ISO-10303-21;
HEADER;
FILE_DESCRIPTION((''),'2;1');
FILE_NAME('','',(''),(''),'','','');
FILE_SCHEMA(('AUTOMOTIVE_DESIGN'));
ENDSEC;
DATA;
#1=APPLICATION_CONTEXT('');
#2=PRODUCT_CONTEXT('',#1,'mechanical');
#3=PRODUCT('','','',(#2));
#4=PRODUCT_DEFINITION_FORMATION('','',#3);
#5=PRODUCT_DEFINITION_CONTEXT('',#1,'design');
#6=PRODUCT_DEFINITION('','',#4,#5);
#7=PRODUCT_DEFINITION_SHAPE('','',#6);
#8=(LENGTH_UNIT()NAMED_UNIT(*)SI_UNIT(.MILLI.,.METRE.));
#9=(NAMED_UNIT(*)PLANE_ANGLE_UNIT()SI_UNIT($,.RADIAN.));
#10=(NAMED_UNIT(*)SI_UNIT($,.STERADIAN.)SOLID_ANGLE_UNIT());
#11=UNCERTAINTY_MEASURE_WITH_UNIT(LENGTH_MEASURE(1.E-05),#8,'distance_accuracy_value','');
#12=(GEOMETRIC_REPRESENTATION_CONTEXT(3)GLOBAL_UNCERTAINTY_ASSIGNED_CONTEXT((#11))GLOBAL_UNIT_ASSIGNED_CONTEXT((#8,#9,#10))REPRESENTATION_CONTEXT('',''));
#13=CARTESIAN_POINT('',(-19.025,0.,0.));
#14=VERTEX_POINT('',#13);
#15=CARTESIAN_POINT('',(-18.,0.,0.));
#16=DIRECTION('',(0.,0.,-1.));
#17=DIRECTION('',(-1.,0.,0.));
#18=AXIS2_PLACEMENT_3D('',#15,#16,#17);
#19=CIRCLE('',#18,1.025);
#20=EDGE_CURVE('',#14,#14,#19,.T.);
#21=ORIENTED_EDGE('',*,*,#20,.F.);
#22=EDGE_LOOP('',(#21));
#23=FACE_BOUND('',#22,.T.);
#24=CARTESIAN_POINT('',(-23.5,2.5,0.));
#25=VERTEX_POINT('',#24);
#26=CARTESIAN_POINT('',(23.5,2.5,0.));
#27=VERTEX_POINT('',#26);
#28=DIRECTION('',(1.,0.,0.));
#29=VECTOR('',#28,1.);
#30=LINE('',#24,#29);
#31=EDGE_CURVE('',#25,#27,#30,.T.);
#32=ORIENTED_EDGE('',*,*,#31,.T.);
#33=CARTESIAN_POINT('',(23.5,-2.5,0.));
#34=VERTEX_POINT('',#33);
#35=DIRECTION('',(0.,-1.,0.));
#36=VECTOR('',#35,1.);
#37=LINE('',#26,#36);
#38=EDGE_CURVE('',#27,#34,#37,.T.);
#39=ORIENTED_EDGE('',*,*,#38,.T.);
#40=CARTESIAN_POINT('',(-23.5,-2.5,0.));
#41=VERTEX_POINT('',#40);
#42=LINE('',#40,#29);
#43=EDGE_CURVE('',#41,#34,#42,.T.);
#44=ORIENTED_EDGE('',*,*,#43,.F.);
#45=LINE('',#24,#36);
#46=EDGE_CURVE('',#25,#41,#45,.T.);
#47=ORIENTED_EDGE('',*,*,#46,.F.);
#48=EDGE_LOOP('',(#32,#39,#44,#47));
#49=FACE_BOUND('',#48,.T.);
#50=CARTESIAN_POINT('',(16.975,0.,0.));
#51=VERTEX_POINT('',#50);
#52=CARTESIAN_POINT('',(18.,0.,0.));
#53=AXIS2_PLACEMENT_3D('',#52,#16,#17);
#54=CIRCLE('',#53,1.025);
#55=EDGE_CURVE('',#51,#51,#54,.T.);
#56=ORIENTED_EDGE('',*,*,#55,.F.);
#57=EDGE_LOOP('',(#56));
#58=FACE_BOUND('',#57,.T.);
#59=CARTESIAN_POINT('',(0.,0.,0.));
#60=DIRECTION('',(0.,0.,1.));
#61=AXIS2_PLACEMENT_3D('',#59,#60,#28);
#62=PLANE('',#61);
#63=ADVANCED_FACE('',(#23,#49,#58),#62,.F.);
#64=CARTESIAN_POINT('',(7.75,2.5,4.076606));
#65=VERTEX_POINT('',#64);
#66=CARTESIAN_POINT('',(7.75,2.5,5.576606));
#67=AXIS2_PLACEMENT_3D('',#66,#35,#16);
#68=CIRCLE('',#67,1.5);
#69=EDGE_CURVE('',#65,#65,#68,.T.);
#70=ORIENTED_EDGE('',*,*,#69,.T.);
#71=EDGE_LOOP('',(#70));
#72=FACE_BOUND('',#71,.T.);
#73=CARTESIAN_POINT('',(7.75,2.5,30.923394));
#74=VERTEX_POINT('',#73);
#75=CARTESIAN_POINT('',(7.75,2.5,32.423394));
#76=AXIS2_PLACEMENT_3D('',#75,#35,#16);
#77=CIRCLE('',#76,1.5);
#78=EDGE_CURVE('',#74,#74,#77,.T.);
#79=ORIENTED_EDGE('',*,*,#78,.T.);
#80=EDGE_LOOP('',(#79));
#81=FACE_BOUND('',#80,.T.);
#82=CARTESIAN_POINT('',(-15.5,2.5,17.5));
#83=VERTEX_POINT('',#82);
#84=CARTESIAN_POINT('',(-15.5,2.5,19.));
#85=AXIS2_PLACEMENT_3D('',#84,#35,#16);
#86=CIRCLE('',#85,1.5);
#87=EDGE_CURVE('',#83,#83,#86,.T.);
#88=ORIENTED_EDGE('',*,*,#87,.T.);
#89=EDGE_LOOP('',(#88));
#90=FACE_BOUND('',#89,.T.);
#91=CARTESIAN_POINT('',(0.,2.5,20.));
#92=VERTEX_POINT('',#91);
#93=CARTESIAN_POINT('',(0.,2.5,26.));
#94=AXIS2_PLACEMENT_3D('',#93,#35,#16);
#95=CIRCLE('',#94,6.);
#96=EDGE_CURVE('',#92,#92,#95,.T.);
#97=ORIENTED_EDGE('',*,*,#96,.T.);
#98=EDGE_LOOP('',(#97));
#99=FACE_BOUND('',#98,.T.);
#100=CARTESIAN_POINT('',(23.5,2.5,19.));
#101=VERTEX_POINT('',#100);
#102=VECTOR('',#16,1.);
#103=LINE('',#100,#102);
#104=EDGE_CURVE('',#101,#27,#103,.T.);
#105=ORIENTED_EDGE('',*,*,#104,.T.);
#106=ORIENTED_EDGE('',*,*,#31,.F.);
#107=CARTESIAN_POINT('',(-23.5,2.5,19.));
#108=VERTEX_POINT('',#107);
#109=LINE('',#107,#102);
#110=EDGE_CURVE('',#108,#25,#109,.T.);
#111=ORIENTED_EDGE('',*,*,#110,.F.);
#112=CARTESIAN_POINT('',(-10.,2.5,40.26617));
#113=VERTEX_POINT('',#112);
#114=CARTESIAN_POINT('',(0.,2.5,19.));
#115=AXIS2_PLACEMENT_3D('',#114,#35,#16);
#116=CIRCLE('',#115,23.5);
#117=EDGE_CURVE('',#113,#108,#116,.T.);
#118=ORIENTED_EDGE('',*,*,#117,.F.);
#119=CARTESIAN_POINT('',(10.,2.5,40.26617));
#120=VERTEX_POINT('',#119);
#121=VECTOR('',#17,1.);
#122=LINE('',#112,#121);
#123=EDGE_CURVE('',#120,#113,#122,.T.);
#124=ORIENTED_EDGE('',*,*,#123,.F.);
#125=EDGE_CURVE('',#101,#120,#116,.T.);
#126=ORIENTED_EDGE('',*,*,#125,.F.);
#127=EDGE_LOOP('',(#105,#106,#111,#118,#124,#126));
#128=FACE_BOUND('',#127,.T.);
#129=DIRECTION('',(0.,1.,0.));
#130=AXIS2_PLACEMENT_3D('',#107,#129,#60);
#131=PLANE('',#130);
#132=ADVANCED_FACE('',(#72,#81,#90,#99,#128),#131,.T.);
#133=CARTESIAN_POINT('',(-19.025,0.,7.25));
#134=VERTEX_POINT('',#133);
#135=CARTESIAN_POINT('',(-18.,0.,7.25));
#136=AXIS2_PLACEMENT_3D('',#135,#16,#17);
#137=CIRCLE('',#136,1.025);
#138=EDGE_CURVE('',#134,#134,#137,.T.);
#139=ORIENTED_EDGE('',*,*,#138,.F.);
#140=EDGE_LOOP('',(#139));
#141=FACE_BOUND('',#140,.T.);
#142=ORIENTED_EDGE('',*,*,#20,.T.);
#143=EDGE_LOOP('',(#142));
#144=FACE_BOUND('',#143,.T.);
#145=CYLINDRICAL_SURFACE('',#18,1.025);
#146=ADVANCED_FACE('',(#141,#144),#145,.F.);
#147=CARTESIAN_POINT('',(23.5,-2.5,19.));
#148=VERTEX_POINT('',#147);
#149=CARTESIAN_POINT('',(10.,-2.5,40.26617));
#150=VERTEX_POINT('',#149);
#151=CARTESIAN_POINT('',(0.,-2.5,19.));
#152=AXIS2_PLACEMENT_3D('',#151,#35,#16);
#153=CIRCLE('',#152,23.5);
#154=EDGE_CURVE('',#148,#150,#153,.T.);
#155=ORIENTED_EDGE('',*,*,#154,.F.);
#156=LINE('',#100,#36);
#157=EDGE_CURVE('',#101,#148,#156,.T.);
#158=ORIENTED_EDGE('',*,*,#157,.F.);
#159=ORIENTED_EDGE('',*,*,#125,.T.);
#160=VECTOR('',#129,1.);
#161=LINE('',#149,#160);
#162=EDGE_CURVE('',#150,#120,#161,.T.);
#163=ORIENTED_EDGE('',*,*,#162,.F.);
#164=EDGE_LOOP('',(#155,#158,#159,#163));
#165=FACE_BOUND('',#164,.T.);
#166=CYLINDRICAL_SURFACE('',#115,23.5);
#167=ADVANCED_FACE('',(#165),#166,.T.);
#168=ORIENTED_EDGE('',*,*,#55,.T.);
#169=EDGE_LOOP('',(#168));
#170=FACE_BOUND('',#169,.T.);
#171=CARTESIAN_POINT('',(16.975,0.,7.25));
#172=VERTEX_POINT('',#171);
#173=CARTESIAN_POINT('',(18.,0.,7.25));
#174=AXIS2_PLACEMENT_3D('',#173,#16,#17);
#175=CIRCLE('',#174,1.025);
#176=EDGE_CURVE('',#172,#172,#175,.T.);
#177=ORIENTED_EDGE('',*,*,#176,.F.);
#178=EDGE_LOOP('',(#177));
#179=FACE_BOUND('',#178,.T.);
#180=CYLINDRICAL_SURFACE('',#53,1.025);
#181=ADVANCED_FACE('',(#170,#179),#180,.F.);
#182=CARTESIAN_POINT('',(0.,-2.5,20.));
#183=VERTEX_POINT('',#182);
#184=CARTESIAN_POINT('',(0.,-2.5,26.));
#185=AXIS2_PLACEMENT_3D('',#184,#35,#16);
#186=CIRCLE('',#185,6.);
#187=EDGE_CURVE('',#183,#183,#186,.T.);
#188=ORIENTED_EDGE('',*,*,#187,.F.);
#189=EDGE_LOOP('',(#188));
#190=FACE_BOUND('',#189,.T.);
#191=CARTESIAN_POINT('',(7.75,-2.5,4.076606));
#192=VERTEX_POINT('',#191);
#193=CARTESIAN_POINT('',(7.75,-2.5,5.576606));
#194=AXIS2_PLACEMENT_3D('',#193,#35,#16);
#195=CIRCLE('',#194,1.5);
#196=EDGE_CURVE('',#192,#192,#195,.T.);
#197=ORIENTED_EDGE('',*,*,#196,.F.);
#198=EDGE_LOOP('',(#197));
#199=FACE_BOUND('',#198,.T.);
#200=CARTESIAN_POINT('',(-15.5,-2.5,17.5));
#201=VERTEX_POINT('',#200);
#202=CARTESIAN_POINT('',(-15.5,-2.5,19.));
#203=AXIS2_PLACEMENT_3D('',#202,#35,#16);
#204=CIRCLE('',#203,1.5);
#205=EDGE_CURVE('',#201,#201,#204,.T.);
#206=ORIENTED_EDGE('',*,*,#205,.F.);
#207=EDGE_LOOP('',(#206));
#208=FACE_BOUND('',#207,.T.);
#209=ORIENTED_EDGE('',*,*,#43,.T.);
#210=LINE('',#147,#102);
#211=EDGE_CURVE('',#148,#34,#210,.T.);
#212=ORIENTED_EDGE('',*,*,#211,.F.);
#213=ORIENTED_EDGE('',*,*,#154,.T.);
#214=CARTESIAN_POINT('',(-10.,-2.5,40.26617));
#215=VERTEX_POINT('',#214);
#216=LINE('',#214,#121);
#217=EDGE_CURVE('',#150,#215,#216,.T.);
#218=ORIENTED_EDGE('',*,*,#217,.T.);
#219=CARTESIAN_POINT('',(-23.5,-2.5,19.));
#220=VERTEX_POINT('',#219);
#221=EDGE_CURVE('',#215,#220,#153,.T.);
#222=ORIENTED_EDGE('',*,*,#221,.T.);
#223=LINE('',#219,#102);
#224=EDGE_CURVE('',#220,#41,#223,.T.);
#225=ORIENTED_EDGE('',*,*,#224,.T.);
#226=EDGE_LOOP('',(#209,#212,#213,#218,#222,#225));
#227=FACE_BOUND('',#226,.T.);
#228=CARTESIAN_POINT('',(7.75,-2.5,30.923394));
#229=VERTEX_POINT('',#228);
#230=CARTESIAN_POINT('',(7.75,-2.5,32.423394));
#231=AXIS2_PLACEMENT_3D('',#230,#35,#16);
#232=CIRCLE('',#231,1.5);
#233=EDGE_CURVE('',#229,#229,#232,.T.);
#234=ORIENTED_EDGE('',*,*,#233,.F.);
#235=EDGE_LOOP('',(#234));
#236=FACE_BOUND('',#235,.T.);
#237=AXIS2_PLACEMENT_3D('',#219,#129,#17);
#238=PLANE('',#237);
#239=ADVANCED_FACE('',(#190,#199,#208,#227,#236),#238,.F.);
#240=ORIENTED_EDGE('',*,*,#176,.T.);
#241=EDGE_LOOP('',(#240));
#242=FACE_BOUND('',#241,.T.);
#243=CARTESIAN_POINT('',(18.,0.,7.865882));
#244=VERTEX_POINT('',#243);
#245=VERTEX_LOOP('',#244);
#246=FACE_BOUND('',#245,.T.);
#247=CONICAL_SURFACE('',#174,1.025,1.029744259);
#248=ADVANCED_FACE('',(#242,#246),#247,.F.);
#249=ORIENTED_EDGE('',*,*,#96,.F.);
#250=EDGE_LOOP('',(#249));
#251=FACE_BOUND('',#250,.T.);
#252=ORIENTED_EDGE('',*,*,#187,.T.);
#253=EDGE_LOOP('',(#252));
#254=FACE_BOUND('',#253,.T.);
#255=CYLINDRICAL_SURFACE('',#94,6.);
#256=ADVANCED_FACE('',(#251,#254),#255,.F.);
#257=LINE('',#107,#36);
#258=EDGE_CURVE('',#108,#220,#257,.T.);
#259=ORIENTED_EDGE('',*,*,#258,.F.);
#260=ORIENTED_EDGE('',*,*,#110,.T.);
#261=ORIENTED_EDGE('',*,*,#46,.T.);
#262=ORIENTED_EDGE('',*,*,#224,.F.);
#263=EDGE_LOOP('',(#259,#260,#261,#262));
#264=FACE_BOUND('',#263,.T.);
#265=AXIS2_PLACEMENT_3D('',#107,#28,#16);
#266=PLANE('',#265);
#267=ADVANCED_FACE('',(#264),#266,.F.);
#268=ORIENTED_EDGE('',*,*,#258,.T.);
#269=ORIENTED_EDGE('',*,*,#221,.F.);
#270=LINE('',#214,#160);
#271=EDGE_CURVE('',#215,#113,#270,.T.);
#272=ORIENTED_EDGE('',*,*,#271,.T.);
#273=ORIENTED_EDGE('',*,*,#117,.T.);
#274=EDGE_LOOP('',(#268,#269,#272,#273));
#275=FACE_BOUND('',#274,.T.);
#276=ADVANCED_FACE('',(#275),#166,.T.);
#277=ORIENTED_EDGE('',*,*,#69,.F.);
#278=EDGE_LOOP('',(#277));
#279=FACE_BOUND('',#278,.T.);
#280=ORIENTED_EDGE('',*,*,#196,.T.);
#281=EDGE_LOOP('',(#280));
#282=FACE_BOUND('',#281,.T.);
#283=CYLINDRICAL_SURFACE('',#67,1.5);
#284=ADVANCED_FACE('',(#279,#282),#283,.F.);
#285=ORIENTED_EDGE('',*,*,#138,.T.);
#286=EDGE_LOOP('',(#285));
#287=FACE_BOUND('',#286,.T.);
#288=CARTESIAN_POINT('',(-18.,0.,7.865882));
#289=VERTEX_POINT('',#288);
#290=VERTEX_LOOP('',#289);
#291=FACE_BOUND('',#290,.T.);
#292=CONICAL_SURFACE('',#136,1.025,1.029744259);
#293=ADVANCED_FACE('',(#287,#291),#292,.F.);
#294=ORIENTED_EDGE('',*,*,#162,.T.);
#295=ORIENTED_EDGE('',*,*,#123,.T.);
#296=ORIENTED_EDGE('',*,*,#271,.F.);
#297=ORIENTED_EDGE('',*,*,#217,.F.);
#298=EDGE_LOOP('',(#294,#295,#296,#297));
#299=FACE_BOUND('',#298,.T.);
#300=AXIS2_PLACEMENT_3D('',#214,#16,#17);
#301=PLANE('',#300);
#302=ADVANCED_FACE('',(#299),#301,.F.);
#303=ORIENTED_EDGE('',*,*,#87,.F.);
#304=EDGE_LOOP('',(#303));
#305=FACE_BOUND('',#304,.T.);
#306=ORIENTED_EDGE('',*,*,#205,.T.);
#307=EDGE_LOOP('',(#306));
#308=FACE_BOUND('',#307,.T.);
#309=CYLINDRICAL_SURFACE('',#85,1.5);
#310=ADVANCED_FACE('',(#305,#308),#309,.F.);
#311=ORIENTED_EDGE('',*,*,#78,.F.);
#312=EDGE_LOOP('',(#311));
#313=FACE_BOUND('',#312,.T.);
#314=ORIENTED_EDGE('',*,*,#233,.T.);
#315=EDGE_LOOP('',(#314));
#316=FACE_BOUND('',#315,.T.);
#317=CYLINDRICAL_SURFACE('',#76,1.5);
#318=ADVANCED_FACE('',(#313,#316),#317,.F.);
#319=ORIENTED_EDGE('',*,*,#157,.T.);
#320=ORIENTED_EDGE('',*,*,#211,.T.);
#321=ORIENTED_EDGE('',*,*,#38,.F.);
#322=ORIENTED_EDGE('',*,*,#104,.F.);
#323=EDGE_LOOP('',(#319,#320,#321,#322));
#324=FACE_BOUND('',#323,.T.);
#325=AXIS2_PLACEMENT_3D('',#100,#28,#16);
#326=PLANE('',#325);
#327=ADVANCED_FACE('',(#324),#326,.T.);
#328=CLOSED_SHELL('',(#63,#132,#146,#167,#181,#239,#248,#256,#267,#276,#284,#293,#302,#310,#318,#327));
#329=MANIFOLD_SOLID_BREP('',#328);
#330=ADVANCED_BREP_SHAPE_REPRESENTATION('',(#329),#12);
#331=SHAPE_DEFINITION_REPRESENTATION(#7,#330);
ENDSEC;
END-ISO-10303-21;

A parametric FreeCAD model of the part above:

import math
import FreeCAD as App
import Part
import Sketcher
Q = App.Units.Quantity

doc = App.newDocument("Part")
params = doc.addObject("Spreadsheet::Sheet", "Params")
for row, (alias, value) in enumerate([
    ("sketch1_width", "47 mm"),
    ("sketch1_height", "5 mm"),
    ("pad1_length", "19 mm"),
    ("sketch2_diameter", "47 mm"),
    ("pad2_length", "5 mm"),
    ("sketch3_diameter", "12 mm"),
    ("sketch3_diameter2", "3 mm"),
    ("pocket1_length", "5 mm"),
    ("sketch4_diameter", "2.05 mm"),
    ("hole_diameter", "2.05 mm"),
    ("hole_depth", "7.25 mm"),
    ("sketch5_radius", "23.5 mm"),
    ("pocket2_length", "5 mm"),
    ("sketch6_radius", "23.5 mm"),
    ("sketch6_width", "20 mm"),
    ("pocket3_length", "5 mm"),
], start=1):
    params.set(f"A{row}", alias)
    params.set(f"B{row}", "=" + value)
    params.setAlias(f"B{row}", alias)

body = doc.addObject("PartDesign::Body", "Body")

sketch1 = body.newObject("Sketcher::SketchObject", "Sketch")
sketch1.AttachmentSupport = (doc.getObject("XY_Plane"), [""])
sketch1.MapMode = "FlatFace"
sketch1.addGeometry([
    Part.LineSegment(App.Vector(-24, 2, 0), App.Vector(-24, -2, 0)),
    Part.LineSegment(App.Vector(-24, -2, 0), App.Vector(24, -2, 0)),
    Part.LineSegment(App.Vector(24, -2, 0), App.Vector(24, 2, 0)),
    Part.LineSegment(App.Vector(24, 2, 0), App.Vector(-24, 2, 0)),
], False)
sketch1.addConstraint([
    Sketcher.Constraint("Coincident", 0, 2, 1, 1),
    Sketcher.Constraint("Coincident", 1, 2, 2, 1),
    Sketcher.Constraint("Coincident", 2, 2, 3, 1),
    Sketcher.Constraint("Coincident", 3, 2, 0, 1),
    Sketcher.Constraint("Vertical", 0),
    Sketcher.Constraint("Horizontal", 1),
    Sketcher.Constraint("Vertical", 2),
    Sketcher.Constraint("Horizontal", 3),
    Sketcher.Constraint("Symmetric", 0, 2, 2, 2, -1, 1),
    Sketcher.Constraint("DistanceX", 1, 1, 1, 2, Q("47 mm")),
    Sketcher.Constraint("DistanceY", 0, 2, 0, 1, Q("5 mm")),
])
sketch1.setExpression("Constraints[9]", "Params.sketch1_width")
sketch1.setExpression("Constraints[10]", "Params.sketch1_height")
pad1 = body.newObject("PartDesign::Pad", "Pad")
pad1.Profile = sketch1
pad1.setExpression("Length", "Params.pad1_length")

sketch2 = body.newObject("Sketcher::SketchObject", "Sketch001")
sketch2.AttachmentSupport = (doc.getObject("XZ_Plane"), [""])
sketch2.MapMode = "FlatFace"
sketch2.AttachmentOffset = App.Placement(App.Vector(0, 0, 2.5), App.Rotation())
sketch2.addGeometry(Part.Circle(App.Vector(0, 19, 0), App.Vector(0, 0, 1), 24), False)
sketch2.addConstraint([
    Sketcher.Constraint("PointOnObject", 0, 3, -2),
    Sketcher.Constraint("Diameter", 0, Q("47 mm")),
    Sketcher.Constraint("DistanceY", -1, 1, 0, 3, Q("19 mm")),
])
sketch2.setExpression("Constraints[1]", "Params.sketch2_diameter")
pad2 = body.newObject("PartDesign::Pad", "Pad001")
pad2.Profile = sketch2
pad2.setExpression("Length", "Params.pad2_length")
pad2.Reversed = True

sketch3 = body.newObject("Sketcher::SketchObject", "Sketch002")
sketch3.AttachmentSupport = (doc.getObject("XZ_Plane"), [""])
sketch3.MapMode = "FlatFace"
sketch3.AttachmentOffset = App.Placement(App.Vector(0, 0, 2.5), App.Rotation())
sketch3.addGeometry([
    Part.Circle(App.Vector(0, 26, 0), App.Vector(0, 0, 1), 6),
    Part.Circle(App.Vector(-15.5, 19, 0), App.Vector(0, 0, 1), 1.5),
    Part.Circle(App.Vector(7.8, 5.6, 0), App.Vector(0, 0, 1), 1.5),
    Part.Circle(App.Vector(7.8, 32.4, 0), App.Vector(0, 0, 1), 1.5),
], False)
sketch3.addConstraint([
    Sketcher.Constraint("Equal", 1, 2),
    Sketcher.Constraint("Equal", 2, 3),
    Sketcher.Constraint("PointOnObject", 0, 3, -2),
    Sketcher.Constraint("Vertical", 2, 3, 3, 3),
    Sketcher.Constraint("Diameter", 0, Q("12 mm")),
    Sketcher.Constraint("Diameter", 1, Q("3 mm")),
    Sketcher.Constraint("DistanceY", -1, 1, 0, 3, Q("26 mm")),
    Sketcher.Constraint("DistanceY", -1, 1, 1, 3, Q("19 mm")),
    Sketcher.Constraint("DistanceX", 1, 3, -1, 1, Q("15.5 mm")),
    Sketcher.Constraint("DistanceX", -1, 1, 2, 3, Q("7.75 mm")),
    Sketcher.Constraint("DistanceY", -1, 1, 2, 3, Q("5.576606 mm")),
    Sketcher.Constraint("DistanceY", -1, 1, 3, 3, Q("32.423394 mm")),
])
sketch3.setExpression("Constraints[4]", "Params.sketch3_diameter")
sketch3.setExpression("Constraints[5]", "Params.sketch3_diameter2")
pocket1 = body.newObject("PartDesign::Pocket", "Pocket")
pocket1.Profile = sketch3
pocket1.setExpression("Length", "Params.pocket1_length")

sketch4 = body.newObject("Sketcher::SketchObject", "Sketch003")
sketch4.AttachmentSupport = (doc.getObject("XY_Plane"), [""])
sketch4.MapMode = "FlatFace"
sketch4.addGeometry([
    Part.Circle(App.Vector(-18, 0, 0), App.Vector(0, 0, 1), 1),
    Part.Circle(App.Vector(18, 0, 0), App.Vector(0, 0, 1), 1),
], False)
sketch4.addConstraint([
    Sketcher.Constraint("Equal", 0, 1),
    Sketcher.Constraint("Symmetric", 0, 3, 1, 3, -1, 1),
    Sketcher.Constraint("PointOnObject", 0, 3, -1),
    Sketcher.Constraint("Diameter", 0, Q("2.05 mm")),
    Sketcher.Constraint("DistanceX", 0, 3, -1, 1, Q("18 mm")),
])
sketch4.setExpression("Constraints[3]", "Params.sketch4_diameter")
doc.recompute()
hole = body.newObject("PartDesign::Hole", "Hole")
hole.Profile = sketch4
hole.ThreadType = "None"
hole.setExpression("Diameter", "Params.hole_diameter")
hole.DepthType = "Dimension"
hole.setExpression("Depth", "Params.hole_depth")
hole.DrillPoint = "Angled"
hole.DrillPointAngle = 118
hole.Reversed = True

sketch5 = body.newObject("Sketcher::SketchObject", "Sketch004")
sketch5.AttachmentSupport = (doc.getObject("XZ_Plane"), [""])
sketch5.MapMode = "FlatFace"
sketch5.AttachmentOffset = App.Placement(App.Vector(0, 0, -2.5), App.Rotation())
sketch5.addGeometry([
    Part.LineSegment(App.Vector(-14, 0, 0), App.Vector(14, 0, 0)),
    Part.ArcOfCircle(Part.Circle(App.Vector(0, 19, 0), App.Vector(0, 0, 1), 24), math.radians(-126), math.radians(-54)),
], False)
sketch5.addConstraint([
    Sketcher.Constraint("Coincident", 0, 1, 1, 1),
    Sketcher.Constraint("Coincident", 1, 2, 0, 2),
    Sketcher.Constraint("Horizontal", 0),
    Sketcher.Constraint("Symmetric", 0, 1, 1, 2, -1, 1),
    Sketcher.Constraint("Radius", 1, Q("23.5 mm")),
    Sketcher.Constraint("DistanceY", -1, 1, 1, 3, Q("19 mm")),
])
sketch5.setExpression("Constraints[4]", "Params.sketch5_radius")
pocket2 = body.newObject("PartDesign::Pocket", "Pocket001")
pocket2.Profile = sketch5
pocket2.setExpression("Length", "Params.pocket2_length")
pocket2.Reversed = True

sketch6 = body.newObject("Sketcher::SketchObject", "Sketch005")
sketch6.AttachmentSupport = (doc.getObject("XZ_Plane"), [""])
sketch6.MapMode = "FlatFace"
sketch6.AttachmentOffset = App.Placement(App.Vector(0, 0, -2.5), App.Rotation())
sketch6.addGeometry([
    Part.LineSegment(App.Vector(10, 40, 0), App.Vector(-10, 40, 0)),
    Part.ArcOfCircle(Part.Circle(App.Vector(0, 19, 0), App.Vector(0, 0, 1), 23), math.radians(65), math.radians(115)),
], False)
sketch6.addConstraint([
    Sketcher.Constraint("Coincident", 0, 1, 1, 1),
    Sketcher.Constraint("Coincident", 1, 2, 0, 2),
    Sketcher.Constraint("Horizontal", 0),
    Sketcher.Constraint("PointOnObject", 1, 3, -2),
    Sketcher.Constraint("Radius", 1, Q("23.5 mm")),
    Sketcher.Constraint("DistanceX", 0, 2, 0, 1, Q("20 mm")),
    Sketcher.Constraint("DistanceY", -1, 1, 1, 3, Q("19 mm")),
])
sketch6.setExpression("Constraints[4]", "Params.sketch6_radius")
sketch6.setExpression("Constraints[5]", "Params.sketch6_width")
pocket3 = body.newObject("PartDesign::Pocket", "Pocket002")
pocket3.Profile = sketch6
pocket3.setExpression("Length", "Params.pocket3_length")
pocket3.Reversed = True

doc.recompute()
